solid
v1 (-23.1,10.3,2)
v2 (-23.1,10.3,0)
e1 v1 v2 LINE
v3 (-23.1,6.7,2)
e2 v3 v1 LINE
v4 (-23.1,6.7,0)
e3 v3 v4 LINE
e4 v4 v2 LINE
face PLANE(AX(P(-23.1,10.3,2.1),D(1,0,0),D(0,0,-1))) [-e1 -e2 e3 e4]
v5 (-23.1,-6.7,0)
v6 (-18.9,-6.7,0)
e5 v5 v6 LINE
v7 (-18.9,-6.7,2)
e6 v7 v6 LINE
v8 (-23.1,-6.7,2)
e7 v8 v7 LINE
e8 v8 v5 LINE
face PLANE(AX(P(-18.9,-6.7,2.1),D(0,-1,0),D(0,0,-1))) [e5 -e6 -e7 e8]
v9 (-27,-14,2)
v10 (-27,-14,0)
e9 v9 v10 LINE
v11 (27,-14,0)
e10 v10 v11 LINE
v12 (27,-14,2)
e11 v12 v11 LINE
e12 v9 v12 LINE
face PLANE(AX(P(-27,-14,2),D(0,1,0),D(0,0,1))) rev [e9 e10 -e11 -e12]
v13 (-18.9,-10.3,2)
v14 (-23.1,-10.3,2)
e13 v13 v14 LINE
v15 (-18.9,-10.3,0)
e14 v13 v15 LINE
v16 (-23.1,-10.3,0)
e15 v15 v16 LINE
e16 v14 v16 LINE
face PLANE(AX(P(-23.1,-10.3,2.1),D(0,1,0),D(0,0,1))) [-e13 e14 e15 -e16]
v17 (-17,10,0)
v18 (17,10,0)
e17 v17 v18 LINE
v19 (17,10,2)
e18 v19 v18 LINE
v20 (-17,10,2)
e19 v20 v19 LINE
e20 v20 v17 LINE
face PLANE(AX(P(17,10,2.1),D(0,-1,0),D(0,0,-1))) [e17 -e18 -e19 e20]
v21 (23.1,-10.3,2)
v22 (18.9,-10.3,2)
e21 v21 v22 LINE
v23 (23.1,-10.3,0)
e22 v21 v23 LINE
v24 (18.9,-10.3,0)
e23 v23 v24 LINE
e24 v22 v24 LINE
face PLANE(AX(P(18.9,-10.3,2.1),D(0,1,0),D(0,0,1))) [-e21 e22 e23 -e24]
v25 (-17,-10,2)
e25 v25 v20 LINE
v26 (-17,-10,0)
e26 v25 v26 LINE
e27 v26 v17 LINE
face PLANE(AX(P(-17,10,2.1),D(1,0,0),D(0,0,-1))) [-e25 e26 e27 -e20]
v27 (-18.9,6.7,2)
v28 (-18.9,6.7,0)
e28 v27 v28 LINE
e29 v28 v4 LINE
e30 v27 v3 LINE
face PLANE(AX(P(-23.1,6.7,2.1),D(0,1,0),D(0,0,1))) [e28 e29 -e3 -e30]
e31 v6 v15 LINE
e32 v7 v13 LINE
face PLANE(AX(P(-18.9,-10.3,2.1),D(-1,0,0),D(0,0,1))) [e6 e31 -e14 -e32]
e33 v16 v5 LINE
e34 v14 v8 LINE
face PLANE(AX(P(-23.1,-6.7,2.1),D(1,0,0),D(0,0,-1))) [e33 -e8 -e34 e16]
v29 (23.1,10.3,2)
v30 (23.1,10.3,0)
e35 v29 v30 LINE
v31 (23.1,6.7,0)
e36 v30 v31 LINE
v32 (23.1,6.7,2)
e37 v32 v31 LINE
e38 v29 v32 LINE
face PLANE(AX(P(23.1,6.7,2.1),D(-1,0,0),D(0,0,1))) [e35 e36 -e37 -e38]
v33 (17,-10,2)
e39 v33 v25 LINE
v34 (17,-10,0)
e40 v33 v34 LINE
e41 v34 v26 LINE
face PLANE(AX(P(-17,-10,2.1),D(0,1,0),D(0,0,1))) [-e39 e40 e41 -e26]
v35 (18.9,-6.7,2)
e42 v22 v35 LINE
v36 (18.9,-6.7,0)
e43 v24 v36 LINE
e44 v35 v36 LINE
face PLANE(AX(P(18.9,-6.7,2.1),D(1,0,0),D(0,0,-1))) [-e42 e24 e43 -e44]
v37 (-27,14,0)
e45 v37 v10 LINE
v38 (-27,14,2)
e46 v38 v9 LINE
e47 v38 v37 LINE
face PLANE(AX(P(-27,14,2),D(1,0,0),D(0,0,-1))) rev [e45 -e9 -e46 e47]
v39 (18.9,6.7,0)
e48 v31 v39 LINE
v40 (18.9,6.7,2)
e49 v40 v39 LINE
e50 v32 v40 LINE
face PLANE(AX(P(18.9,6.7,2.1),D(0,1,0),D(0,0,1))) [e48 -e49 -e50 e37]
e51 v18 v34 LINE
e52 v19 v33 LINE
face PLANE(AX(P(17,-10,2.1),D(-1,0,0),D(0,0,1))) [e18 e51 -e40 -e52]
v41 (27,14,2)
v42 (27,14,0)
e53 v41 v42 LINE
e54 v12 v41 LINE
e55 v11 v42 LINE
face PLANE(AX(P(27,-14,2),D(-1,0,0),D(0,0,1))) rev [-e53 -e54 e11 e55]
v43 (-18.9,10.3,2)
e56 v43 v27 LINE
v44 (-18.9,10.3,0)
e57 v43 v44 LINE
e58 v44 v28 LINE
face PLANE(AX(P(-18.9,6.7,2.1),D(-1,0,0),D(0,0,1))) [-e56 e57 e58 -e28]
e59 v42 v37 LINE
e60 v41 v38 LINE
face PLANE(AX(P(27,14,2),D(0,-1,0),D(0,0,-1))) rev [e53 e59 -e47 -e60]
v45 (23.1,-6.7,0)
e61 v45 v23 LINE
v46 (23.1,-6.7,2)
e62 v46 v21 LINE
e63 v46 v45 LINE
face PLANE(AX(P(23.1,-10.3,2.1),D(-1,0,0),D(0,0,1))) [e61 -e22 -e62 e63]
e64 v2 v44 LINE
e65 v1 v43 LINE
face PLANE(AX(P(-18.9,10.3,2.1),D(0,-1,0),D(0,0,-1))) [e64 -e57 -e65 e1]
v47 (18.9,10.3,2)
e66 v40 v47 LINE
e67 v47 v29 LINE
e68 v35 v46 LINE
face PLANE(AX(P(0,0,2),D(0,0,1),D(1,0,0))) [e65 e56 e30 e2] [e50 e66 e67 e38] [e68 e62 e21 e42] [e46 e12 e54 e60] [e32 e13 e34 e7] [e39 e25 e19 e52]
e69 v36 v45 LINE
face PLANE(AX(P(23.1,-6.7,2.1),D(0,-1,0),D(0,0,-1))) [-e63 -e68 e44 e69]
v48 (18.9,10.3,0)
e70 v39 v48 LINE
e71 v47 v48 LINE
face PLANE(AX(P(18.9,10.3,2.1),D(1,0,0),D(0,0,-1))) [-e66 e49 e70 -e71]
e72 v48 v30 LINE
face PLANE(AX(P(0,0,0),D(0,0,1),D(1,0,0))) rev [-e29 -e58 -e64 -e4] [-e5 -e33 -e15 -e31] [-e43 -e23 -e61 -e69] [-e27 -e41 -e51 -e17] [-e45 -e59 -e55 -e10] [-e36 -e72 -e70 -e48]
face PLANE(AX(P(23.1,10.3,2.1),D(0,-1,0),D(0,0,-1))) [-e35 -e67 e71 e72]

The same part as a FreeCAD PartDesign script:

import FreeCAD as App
import Part
import Sketcher

V = App.Vector

doc = App.newDocument("Part")
body = doc.addObject("PartDesign::Body", "Body")

# Sketch on XY plane
sketch1 = doc.addObject("Sketcher::SketchObject", "Sketch")
body.addObject(sketch1)
sketch1.AttachmentSupport = (doc.XY_Plane, [""])
sketch1.MapMode = "FlatFace"
sketch1.addGeometry([
    Part.LineSegment(V(-27, 14, 0), V(-27, -14, 0)),
    Part.LineSegment(V(-27, -14, 0), V(27, -14, 0)),
    Part.LineSegment(V(27, -14, 0), V(27, 14, 0)),
    Part.LineSegment(V(27, 14, 0), V(-27, 14, 0)),
], False)
sketch1.addConstraint([
    Sketcher.Constraint("Coincident", 0, 2, 1, 1),
    Sketcher.Constraint("Coincident", 1, 2, 2, 1),
    Sketcher.Constraint("Coincident", 2, 2, 3, 1),
    Sketcher.Constraint("Coincident", 3, 2, 0, 1),
    Sketcher.Constraint("Vertical", 0),
    Sketcher.Constraint("Horizontal", 1),
    Sketcher.Constraint("Vertical", 2),
    Sketcher.Constraint("Horizontal", 3),
    Sketcher.Constraint("Symmetric", 0, 2, 2, 2, -1, 1),
    Sketcher.Constraint("DistanceX", 1, 1, 1, 2, 54.0),
    Sketcher.Constraint("DistanceY", 0, 2, 0, 1, 28.0),
])
pad1 = doc.addObject("PartDesign::Pad", "Pad")
body.addObject(pad1)
pad1.Profile = sketch1
pad1.Length = 2

# Sketch on XY plane
sketch2 = doc.addObject("Sketcher::SketchObject", "Sketch001")
body.addObject(sketch2)
sketch2.AttachmentSupport = (doc.XY_Plane, [""])
sketch2.MapMode = "FlatFace"
sketch2.AttachmentOffset = App.Placement(V(0, 0, -0.1), App.Rotation())
sketch2.addGeometry([
    Part.LineSegment(V(-17, 10, 0), V(-17, -10, 0)),
    Part.LineSegment(V(-17, -10, 0), V(17, -10, 0)),
    Part.LineSegment(V(17, -10, 0), V(17, 10, 0)),
    Part.LineSegment(V(17, 10, 0), V(-17, 10, 0)),
], False)
sketch2.addConstraint([
    Sketcher.Constraint("Coincident", 0, 2, 1, 1),
    Sketcher.Constraint("Coincident", 1, 2, 2, 1),
    Sketcher.Constraint("Coincident", 2, 2, 3, 1),
    Sketcher.Constraint("Coincident", 3, 2, 0, 1),
    Sketcher.Constraint("Vertical", 0),
    Sketcher.Constraint("Horizontal", 1),
    Sketcher.Constraint("Vertical", 2),
    Sketcher.Constraint("Horizontal", 3),
    Sketcher.Constraint("Symmetric", 0, 2, 2, 2, -1, 1),
    Sketcher.Constraint("DistanceX", 1, 1, 1, 2, 34.0),
    Sketcher.Constraint("DistanceY", 0, 2, 0, 1, 20.0),
])
pocket1 = doc.addObject("PartDesign::Pocket", "Pocket")
body.addObject(pocket1)
pocket1.Profile = sketch2
pocket1.Length = 2.2
pocket1.Reversed = True

# Sketch on XY plane
sketch3 = doc.addObject("Sketcher::SketchObject", "Sketch002")
body.addObject(sketch3)
sketch3.AttachmentSupport = (doc.XY_Plane, [""])
sketch3.MapMode = "FlatFace"
sketch3.AttachmentOffset = App.Placement(V(0, 0, -0.1), App.Rotation())
sketch3.addGeometry([
    Part.LineSegment(V(-23.1, -6.7, 0), V(-23.1, -10.3, 0)),  # 0
    Part.LineSegment(V(-23.1, -10.3, 0), V(-18.9, -10.3, 0)),  # 1
    Part.LineSegment(V(-18.9, -10.3, 0), V(-18.9, -6.7, 0)),  # 2
    Part.LineSegment(V(-18.9, -6.7, 0), V(-23.1, -6.7, 0)),  # 3
    Part.LineSegment(V(-23.1, 10.3, 0), V(-23.1, 6.7, 0)),  # 4
    Part.LineSegment(V(-23.1, 6.7, 0), V(-18.9, 6.7, 0)),  # 5
    Part.LineSegment(V(-18.9, 6.7, 0), V(-18.9, 10.3, 0)),  # 6
    Part.LineSegment(V(-18.9, 10.3, 0), V(-23.1, 10.3, 0)),  # 7
    Part.LineSegment(V(18.9, -6.7, 0), V(18.9, -10.3, 0)),  # 8
    Part.LineSegment(V(18.9, -10.3, 0), V(23.1, -10.3, 0)),  # 9
    Part.LineSegment(V(23.1, -10.3, 0), V(23.1, -6.7, 0)),  # 10
    Part.LineSegment(V(23.1, -6.7, 0), V(18.9, -6.7, 0)),  # 11
    Part.LineSegment(V(18.9, 10.3, 0), V(18.9, 6.7, 0)),  # 12
    Part.LineSegment(V(18.9, 6.7, 0), V(23.1, 6.7, 0)),  # 13
    Part.LineSegment(V(23.1, 6.7, 0), V(23.1, 10.3, 0)),  # 14
    Part.LineSegment(V(23.1, 10.3, 0), V(18.9, 10.3, 0)),  # 15
], False)
sketch3.addConstraint([
    Sketcher.Constraint("Coincident", 0, 2, 1, 1),
    Sketcher.Constraint("Coincident", 1, 2, 2, 1),
    Sketcher.Constraint("Coincident", 2, 2, 3, 1),
    Sketcher.Constraint("Coincident", 3, 2, 0, 1),
    Sketcher.Constraint("Coincident", 4, 2, 5, 1),
    Sketcher.Constraint("Coincident", 5, 2, 6, 1),
    Sketcher.Constraint("Coincident", 6, 2, 7, 1),
    Sketcher.Constraint("Coincident", 7, 2, 4, 1),
    Sketcher.Constraint("Coincident", 8, 2, 9, 1),
    Sketcher.Constraint("Coincident", 9, 2, 10, 1),
    Sketcher.Constraint("Coincident", 10, 2, 11, 1),
    Sketcher.Constraint("Coincident", 11, 2, 8, 1),
    Sketcher.Constraint("Coincident", 12, 2, 13, 1),
    Sketcher.Constraint("Coincident", 13, 2, 14, 1),
    Sketcher.Constraint("Coincident", 14, 2, 15, 1),
    Sketcher.Constraint("Coincident", 15, 2, 12, 1),
    Sketcher.Constraint("Vertical", 0),
    Sketcher.Constraint("Horizontal", 1),
    Sketcher.Constraint("Vertical", 2),
    Sketcher.Constraint("Horizontal", 3),
    Sketcher.Constraint("Vertical", 4),
    Sketcher.Constraint("Horizontal", 5),
    Sketcher.Constraint("Vertical", 6),
    Sketcher.Constraint("Horizontal", 7),
    Sketcher.Constraint("Vertical", 8),
    Sketcher.Constraint("Horizontal", 9),
    Sketcher.Constraint("Vertical", 10),
    Sketcher.Constraint("Horizontal", 11),
    Sketcher.Constraint("Vertical", 12),
    Sketcher.Constraint("Horizontal", 13),
    Sketcher.Constraint("Vertical", 14),
    Sketcher.Constraint("Horizontal", 15),
    Sketcher.Constraint("Symmetric", 6, 2, 8, 2, -1, 1),
    Sketcher.Constraint("Symmetric", 4, 2, 10, 2, -1, 1),
    Sketcher.Constraint("Symmetric", 2, 2, 12, 2, -1, 1),
    Sketcher.Constraint("Symmetric", 0, 2, 14, 2, -1, 1),
    Sketcher.Constraint("Symmetric", 1, 2, 8, 2, -2),
    Sketcher.Constraint("Symmetric", 3, 2, 10, 2, -2),
    Sketcher.Constraint("DistanceX", 1, 1, 1, 2, 4.2),
    Sketcher.Constraint("DistanceY", 0, 2, 0, 1, 3.6),
    Sketcher.Constraint("DistanceY", 0, 2, 4, 2, 17.0),
    Sketcher.Constraint("DistanceX", 0, 2, 8, 2, 42.0),
])
pocket2 = doc.addObject("PartDesign::Pocket", "Pocket001")
body.addObject(pocket2)
pocket2.Profile = sketch3
pocket2.Length = 2.2
pocket2.Reversed = True

doc.recompute()
